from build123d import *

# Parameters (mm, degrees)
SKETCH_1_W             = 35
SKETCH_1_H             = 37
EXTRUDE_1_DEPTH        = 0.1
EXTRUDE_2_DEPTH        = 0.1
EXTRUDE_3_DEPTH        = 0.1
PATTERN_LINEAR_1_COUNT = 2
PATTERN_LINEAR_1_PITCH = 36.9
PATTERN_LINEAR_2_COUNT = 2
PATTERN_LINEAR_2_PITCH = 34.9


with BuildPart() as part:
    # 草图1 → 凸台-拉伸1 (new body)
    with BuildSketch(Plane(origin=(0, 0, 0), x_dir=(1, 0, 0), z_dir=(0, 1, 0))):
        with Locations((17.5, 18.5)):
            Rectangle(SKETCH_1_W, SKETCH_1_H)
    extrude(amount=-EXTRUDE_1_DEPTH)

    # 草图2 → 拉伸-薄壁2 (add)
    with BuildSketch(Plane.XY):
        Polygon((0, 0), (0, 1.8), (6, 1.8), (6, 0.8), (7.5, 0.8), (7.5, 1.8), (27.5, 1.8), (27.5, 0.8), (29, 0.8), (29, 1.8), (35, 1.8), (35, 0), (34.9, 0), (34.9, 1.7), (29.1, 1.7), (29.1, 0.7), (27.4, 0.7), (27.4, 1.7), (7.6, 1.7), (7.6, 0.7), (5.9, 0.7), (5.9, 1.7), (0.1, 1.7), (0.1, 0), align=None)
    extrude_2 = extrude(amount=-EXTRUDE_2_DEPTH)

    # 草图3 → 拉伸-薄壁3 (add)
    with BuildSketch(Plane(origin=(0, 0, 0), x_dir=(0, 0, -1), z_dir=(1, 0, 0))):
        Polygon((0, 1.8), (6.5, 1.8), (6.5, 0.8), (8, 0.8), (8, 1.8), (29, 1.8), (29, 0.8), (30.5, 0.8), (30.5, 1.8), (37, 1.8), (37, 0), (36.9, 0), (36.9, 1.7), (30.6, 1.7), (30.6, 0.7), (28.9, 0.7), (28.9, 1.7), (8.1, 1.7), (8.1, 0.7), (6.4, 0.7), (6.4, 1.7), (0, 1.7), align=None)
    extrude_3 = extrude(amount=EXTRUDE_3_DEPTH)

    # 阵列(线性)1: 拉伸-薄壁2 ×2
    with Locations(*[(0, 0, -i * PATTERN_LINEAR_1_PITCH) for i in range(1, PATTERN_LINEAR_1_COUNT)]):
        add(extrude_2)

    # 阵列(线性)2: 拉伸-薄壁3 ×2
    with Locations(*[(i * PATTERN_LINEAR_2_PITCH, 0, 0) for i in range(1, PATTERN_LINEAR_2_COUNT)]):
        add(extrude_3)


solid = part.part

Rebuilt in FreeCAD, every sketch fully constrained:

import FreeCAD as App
import Part
import Sketcher

V = App.Vector
Q = App.Units.Quantity


def add_polygon(sketch, points):
    """Adds a closed chain of lines whose ends are joined by coincident constraints."""
    first, n = sketch.GeometryCount, len(points)
    for a, b in zip(points, points[1:] + points[:1]):
        sketch.addGeometry(Part.LineSegment(App.Vector(*a, 0), App.Vector(*b, 0)), False)
    for i in range(n):
        sketch.addConstraint(Sketcher.Constraint("Coincident", first + i, 2, first + (i + 1) % n, 1))

doc = App.newDocument("Part")
params = doc.addObject("Spreadsheet::Sheet", "Params")
for row, (alias, value) in enumerate([
    ("sketch1_width", "35 mm"),
    ("sketch1_height", "37 mm"),
    ("pad1_length", "0.1 mm"),
    ("sketch2_width", "6 mm"),
    ("sketch2_width2", "20 mm"),
    ("sketch2_height", "1 mm"),
    ("sketch2_width3", "0.1 mm"),
    ("sketch2_width4", "5.8 mm"),
    ("pad2_length", "0.1 mm"),
    ("sketch3_width", "1 mm"),
    ("sketch3_height", "21 mm"),
    ("sketch3_width2", "0.1 mm"),
    ("sketch3_width3", "1.7 mm"),
    ("sketch3_height2", "6.5 mm"),
    ("pad3_length", "0.1 mm"),
    ("linearpattern_pitch", "36.9 mm"),
    ("linearpattern2_pitch", "34.9 mm"),
], start=1):
    params.set(f"A{row}", alias)
    params.set(f"B{row}", "=" + value)
    params.setAlias(f"B{row}", alias)

body = doc.addObject("PartDesign::Body", "Body")

sketch1 = body.newObject("Sketcher::SketchObject", "Sketch")
sketch1.AttachmentSupport = (doc.getObject("XZ_Plane"), [""])
sketch1.MapMode = "FlatFace"
add_polygon(sketch1, [(0, -37), (0, 0), (35, 0), (35, -37)])
sketch1.addConstraint([
    Sketcher.Constraint("Vertical", 0),
    Sketcher.Constraint("Horizontal", 1),
    Sketcher.Constraint("Vertical", 2),
    Sketcher.Constraint("Horizontal", 3),
    Sketcher.Constraint("Coincident", 0, 2, -1, 1),
    Sketcher.Constraint("DistanceX", 1, 1, 1, 2, Q("35 mm")),
    Sketcher.Constraint("DistanceY", 0, 1, 0, 2, Q("37 mm")),
])
sketch1.setExpression("Constraints[9]", "Params.sketch1_width")
sketch1.setExpression("Constraints[10]", "Params.sketch1_height")
pad1 = body.newObject("PartDesign::Pad", "Pad")
pad1.Profile = sketch1
pad1.setExpression("Length", "Params.pad1_length")

sketch2 = body.newObject("Sketcher::SketchObject", "Sketch001")
sketch2.AttachmentSupport = (doc.getObject("XY_Plane"), [""])
sketch2.MapMode = "FlatFace"
add_polygon(sketch2, [(0, 1.8), (0, 0), (0.1, 0), (0.1, 1.7), (5.9, 1.7), (5.9, 0.7), (7.6, 0.7), (7.6, 1.7), (27.4, 1.7), (27.4, 0.7), (29.1, 0.7), (29.1, 1.7), (34.9, 1.7), (34.9, 0), (35, 0), (35, 1.8), (29, 1.8), (29, 0.8), (27.5, 0.8), (27.5, 1.8), (7.5, 1.8), (7.5, 0.8), (6, 0.8), (6, 1.8)])
sketch2.addConstraint([
    Sketcher.Constraint("Vertical", 0),
    Sketcher.Constraint("Horizontal", 1),
    Sketcher.Constraint("Vertical", 2),
    Sketcher.Constraint("Horizontal", 3),
    Sketcher.Constraint("Vertical", 4),
    Sketcher.Constraint("Horizontal", 5),
    Sketcher.Constraint("Vertical", 6),
    Sketcher.Constraint("Horizontal", 7),
    Sketcher.Constraint("Vertical", 8),
    Sketcher.Constraint("Horizontal", 9),
    Sketcher.Constraint("Vertical", 10),
    Sketcher.Constraint("Horizontal", 11),
    Sketcher.Constraint("Vertical", 12),
    Sketcher.Constraint("Horizontal", 13),
    Sketcher.Constraint("Vertical", 14),
    Sketcher.Constraint("Horizontal", 15),
    Sketcher.Constraint("Vertical", 16),
    Sketcher.Constraint("Horizontal", 17),
    Sketcher.Constraint("Vertical", 18),
    Sketcher.Constraint("Horizontal", 19),
    Sketcher.Constraint("Vertical", 20),
    Sketcher.Constraint("Horizontal", 21),
    Sketcher.Constraint("Vertical", 22),
    Sketcher.Constraint("Horizontal", 23),
    Sketcher.Constraint("Coincident", 0, 2, -1, 1),
    Sketcher.Constraint("PointOnObject", 12, 2, -1),
    Sketcher.Constraint("Horizontal", 3, 2, 6, 2),
    Sketcher.Constraint("Horizontal", 5, 2, 8, 2),
    Sketcher.Constraint("Horizontal", 7, 2, 10, 2),
    Sketcher.Constraint("Horizontal", 15, 2, 18, 2),
    Sketcher.Constraint("Horizontal", 17, 2, 20, 2),
    Sketcher.Constraint("Horizontal", 19, 2, 22, 2),
    Sketcher.Constraint("Equal", 5, 9),
    Sketcher.Constraint("Equal", 3, 11),
    Sketcher.Constraint("Equal", 1, 13),
    Sketcher.Constraint("Equal", 17, 21),
    Sketcher.Constraint("Equal", 15, 23),
    Sketcher.Constraint("Equal", 9, 2),
    Sketcher.Constraint("Equal", 10, 16),
    Sketcher.Constraint("DistanceX", 15, 2, 15, 1, Q("6 mm")),
    Sketcher.Constraint("DistanceX", 19, 2, 19, 1, Q("20 mm")),
    Sketcher.Constraint("DistanceY", 4, 2, 4, 1, Q("1 mm")),
    Sketcher.Constraint("DistanceX", 1, 1, 1, 2, Q("0.1 mm")),
    Sketcher.Constraint("DistanceX", 3, 1, 3, 2, Q("5.8 mm")),
    Sketcher.Constraint("DistanceX", 5, 1, 5, 2, Q("1.7 mm")),
    Sketcher.Constraint("DistanceX", 7, 1, 7, 2, Q("19.8 mm")),
    Sketcher.Constraint("DistanceY", 0, 2, 0, 1, Q("1.8 mm")),
])
sketch2.setExpression("Constraints[63]", "Params.sketch2_width")
sketch2.setExpression("Constraints[64]", "Params.sketch2_width2")
sketch2.setExpression("Constraints[65]", "Params.sketch2_height")
sketch2.setExpression("Constraints[66]", "Params.sketch2_width3")
sketch2.setExpression("Constraints[67]", "Params.sketch2_width4")
pad2 = body.newObject("PartDesign::Pad", "Pad001")
pad2.Profile = sketch2
pad2.setExpression("Length", "Params.pad2_length")
pad2.Reversed = True

sketch3 = body.newObject("Sketcher::SketchObject", "Sketch002")
sketch3.AttachmentSupport = (doc.getObject("YZ_Plane"), [""])
sketch3.MapMode = "FlatFace"
add_polygon(sketch3, [(1.8, -6.5), (1.8, 0), (1.7, 0), (1.7, -6.4), (0.7, -6.4), (0.7, -8.1), (1.7, -8.1), (1.7, -28.9), (0.7, -28.9), (0.7, -30.6), (1.7, -30.6), (1.7, -36.9), (0, -36.9), (0, -37), (1.8, -37), (1.8, -30.5), (0.8, -30.5), (0.8, -29), (1.8, -29), (1.8, -8), (0.8, -8), (0.8, -6.5)])
sketch3.addConstraint([
    Sketcher.Constraint("Vertical", 0),
    Sketcher.Constraint("Horizontal", 1),
    Sketcher.Constraint("Vertical", 2),
    Sketcher.Constraint("Horizontal", 3),
    Sketcher.Constraint("Vertical", 4),
    Sketcher.Constraint("Horizontal", 5),
    Sketcher.Constraint("Vertical", 6),
    Sketcher.Constraint("Horizontal", 7),
    Sketcher.Constraint("Vertical", 8),
    Sketcher.Constraint("Horizontal", 9),
    Sketcher.Constraint("Vertical", 10),
    Sketcher.Constraint("Horizontal", 11),
    Sketcher.Constraint("Vertical", 12),
    Sketcher.Constraint("Horizontal", 13),
    Sketcher.Constraint("Vertical", 14),
    Sketcher.Constraint("Horizontal", 15),
    Sketcher.Constraint("Vertical", 16),
    Sketcher.Constraint("Horizontal", 17),
    Sketcher.Constraint("Vertical", 18),
    Sketcher.Constraint("Horizontal", 19),
    Sketcher.Constraint("Vertical", 20),
    Sketcher.Constraint("Horizontal", 21),
    Sketcher.Constraint("PointOnObject", 0, 2, -1),
    Sketcher.Constraint("PointOnObject", 11, 2, -2),
    Sketcher.Constraint("Vertical", 2, 2, 5, 2),
    Sketcher.Constraint("Vertical", 4, 2, 7, 2),
    Sketcher.Constraint("Vertical", 6, 2, 9, 2),
    Sketcher.Constraint("Vertical", 0, 2, 13, 2),
    Sketcher.Constraint("Vertical", 14, 2, 17, 2),
    Sketcher.Constraint("Vertical", 16, 2, 19, 2),
    Sketcher.Constraint("Equal", 9, 15),
    Sketcher.Constraint("Equal", 11, 4),
    Sketcher.Constraint("Equal", 4, 8),
    Sketcher.Constraint("Equal", 1, 12),
    Sketcher.Constraint("Equal", 0, 14),
    Sketcher.Constraint("Equal", 16, 20),
    Sketcher.Constraint("DistanceX", 3, 2, 3, 1, Q("1 mm")),
    Sketcher.Constraint("DistanceY", 18, 1, 18, 2, Q("21 mm")),
    Sketcher.Constraint("DistanceX", 1, 2, 1, 1, Q("0.1 mm")),
    Sketcher.Constraint("DistanceX", 11, 2, 11, 1, Q("1.7 mm")),
    Sketcher.Constraint("DistanceY", 0, 1, 0, 2, Q("6.5 mm")),
    Sketcher.Constraint("DistanceY", 2, 2, 2, 1, Q("6.4 mm")),
    Sketcher.Constraint("DistanceY", 6, 2, 6, 1, Q("20.8 mm")),
    Sketcher.Constraint("DistanceY", 10, 2, 10, 1, Q("6.3 mm")),
])
sketch3.setExpression("Constraints[58]", "Params.sketch3_width")
sketch3.setExpression("Constraints[59]", "Params.sketch3_height")
sketch3.setExpression("Constraints[60]", "Params.sketch3_width2")
sketch3.setExpression("Constraints[61]", "Params.sketch3_width3")
sketch3.setExpression("Constraints[62]", "Params.sketch3_height2")
pad3 = body.newObject("PartDesign::Pad", "Pad002")
pad3.Profile = sketch3
pad3.setExpression("Length", "Params.pad3_length")
doc.recompute()

linearpattern = body.newObject("PartDesign::LinearPattern", "LinearPattern")
linearpattern.Originals = [pad2]
linearpattern.Direction = (doc.getObject("Z_Axis"), [""])
linearpattern.Mode = "offset"
linearpattern.setExpression("Offset", "Params.linearpattern_pitch")
linearpattern.Occurrences = 2
linearpattern.Reversed = True
body.Tip = linearpattern
doc.recompute()

linearpattern2 = body.newObject("PartDesign::LinearPattern", "LinearPattern001")
linearpattern2.Originals = [pad3]
linearpattern2.Direction = (doc.getObject("X_Axis"), [""])
linearpattern2.Mode = "offset"
linearpattern2.setExpression("Offset", "Params.linearpattern2_pitch")
linearpattern2.Occurrences = 2
body.Tip = linearpattern2

doc.recompute()
